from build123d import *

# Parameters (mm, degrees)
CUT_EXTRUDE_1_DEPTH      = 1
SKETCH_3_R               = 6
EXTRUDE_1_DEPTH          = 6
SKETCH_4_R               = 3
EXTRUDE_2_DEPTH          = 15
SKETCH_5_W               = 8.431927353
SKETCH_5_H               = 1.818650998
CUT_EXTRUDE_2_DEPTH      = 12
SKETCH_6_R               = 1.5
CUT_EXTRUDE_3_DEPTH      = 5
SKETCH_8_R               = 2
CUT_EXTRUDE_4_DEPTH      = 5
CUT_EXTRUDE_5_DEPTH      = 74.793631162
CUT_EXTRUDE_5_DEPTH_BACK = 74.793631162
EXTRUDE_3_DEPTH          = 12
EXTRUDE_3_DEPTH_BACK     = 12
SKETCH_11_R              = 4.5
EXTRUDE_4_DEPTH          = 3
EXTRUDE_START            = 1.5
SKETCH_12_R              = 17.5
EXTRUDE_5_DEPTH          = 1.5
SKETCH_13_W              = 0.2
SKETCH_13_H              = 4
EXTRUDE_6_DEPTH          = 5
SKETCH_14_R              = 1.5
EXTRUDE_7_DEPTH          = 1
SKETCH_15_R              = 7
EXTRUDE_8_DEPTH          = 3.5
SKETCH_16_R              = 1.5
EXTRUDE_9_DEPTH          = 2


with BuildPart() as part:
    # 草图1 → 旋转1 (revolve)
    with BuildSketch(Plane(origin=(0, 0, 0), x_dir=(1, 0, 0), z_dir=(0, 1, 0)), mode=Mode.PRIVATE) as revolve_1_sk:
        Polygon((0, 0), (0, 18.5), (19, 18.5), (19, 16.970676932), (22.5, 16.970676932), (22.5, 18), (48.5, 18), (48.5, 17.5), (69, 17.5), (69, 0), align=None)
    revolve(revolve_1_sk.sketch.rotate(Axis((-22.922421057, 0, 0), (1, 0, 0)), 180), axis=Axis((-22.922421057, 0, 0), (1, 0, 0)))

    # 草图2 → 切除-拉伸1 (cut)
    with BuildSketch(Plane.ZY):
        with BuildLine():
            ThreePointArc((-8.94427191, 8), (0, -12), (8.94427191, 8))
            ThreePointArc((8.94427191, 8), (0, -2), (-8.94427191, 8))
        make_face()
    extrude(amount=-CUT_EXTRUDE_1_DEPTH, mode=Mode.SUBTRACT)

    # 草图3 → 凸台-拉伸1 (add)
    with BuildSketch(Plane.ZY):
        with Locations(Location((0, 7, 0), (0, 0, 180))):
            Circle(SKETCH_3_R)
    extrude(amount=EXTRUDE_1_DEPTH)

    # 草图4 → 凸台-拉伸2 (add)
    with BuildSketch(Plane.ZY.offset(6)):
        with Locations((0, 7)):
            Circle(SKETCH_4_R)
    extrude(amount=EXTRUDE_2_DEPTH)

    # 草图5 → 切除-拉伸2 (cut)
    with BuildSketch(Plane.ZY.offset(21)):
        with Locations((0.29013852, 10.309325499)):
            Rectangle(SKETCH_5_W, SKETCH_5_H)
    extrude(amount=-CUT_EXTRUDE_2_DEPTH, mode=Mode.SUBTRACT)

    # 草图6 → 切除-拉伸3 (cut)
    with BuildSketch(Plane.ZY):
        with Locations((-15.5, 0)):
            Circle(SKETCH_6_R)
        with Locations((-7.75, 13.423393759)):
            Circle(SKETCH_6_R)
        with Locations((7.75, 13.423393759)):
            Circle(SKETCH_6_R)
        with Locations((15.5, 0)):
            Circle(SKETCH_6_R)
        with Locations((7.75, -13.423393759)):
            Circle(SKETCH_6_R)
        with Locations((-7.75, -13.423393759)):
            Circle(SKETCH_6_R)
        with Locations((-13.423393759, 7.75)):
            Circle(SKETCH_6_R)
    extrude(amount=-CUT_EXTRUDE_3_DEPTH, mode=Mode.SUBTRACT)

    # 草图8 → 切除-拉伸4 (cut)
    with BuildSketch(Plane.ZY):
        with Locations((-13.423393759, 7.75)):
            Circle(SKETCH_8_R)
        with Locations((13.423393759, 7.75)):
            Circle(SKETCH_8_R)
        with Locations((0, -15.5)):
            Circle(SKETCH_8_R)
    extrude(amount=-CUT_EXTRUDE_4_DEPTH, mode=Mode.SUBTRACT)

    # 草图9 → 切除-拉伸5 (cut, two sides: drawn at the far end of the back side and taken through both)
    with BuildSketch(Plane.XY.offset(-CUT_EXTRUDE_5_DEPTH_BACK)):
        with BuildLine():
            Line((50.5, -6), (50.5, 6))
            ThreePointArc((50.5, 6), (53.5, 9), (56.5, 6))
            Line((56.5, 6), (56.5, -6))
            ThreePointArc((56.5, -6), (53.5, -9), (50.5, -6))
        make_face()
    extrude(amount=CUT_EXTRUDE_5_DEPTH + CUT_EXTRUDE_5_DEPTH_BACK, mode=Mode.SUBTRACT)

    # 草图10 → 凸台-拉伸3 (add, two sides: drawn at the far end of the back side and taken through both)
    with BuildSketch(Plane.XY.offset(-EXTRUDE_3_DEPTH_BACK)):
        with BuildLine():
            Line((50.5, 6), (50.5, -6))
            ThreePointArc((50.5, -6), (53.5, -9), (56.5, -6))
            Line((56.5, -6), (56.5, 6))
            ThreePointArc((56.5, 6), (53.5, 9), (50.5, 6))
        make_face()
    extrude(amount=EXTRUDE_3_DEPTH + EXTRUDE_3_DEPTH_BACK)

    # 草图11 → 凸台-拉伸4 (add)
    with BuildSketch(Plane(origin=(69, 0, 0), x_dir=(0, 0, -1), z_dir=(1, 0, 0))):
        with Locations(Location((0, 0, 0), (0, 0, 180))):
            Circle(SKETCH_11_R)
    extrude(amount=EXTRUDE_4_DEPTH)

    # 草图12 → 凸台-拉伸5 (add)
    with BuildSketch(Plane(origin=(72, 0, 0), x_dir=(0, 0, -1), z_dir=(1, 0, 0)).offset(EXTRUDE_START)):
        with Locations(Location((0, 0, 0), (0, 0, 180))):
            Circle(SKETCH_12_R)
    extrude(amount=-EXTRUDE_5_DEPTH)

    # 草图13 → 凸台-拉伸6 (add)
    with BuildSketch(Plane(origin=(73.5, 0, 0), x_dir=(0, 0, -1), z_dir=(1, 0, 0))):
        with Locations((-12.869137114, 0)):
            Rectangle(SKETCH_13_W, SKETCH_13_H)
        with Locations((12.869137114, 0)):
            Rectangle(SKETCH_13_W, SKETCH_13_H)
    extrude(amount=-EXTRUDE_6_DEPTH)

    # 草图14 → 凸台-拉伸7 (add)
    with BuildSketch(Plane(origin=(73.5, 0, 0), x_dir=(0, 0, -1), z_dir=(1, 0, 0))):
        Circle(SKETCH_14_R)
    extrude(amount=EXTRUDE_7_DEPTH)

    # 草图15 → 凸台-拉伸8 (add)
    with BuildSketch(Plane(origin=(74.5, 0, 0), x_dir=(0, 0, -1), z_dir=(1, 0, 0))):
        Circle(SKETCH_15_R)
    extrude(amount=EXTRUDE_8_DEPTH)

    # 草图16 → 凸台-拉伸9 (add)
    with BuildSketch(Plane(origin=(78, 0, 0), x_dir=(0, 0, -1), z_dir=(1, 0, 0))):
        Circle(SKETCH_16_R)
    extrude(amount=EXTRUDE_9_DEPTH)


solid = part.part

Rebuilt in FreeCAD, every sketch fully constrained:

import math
import FreeCAD as App
import Part
import Sketcher

V = App.Vector
Q = App.Units.Quantity


def add_polygon(sketch, points):
    """Adds a closed chain of lines whose ends are joined by coincident constraints."""
    first, n = sketch.GeometryCount, len(points)
    for a, b in zip(points, points[1:] + points[:1]):
        sketch.addGeometry(Part.LineSegment(App.Vector(*a, 0), App.Vector(*b, 0)), False)
    for i in range(n):
        sketch.addConstraint(Sketcher.Constraint("Coincident", first + i, 2, first + (i + 1) % n, 1))

doc = App.newDocument("Part")
params = doc.addObject("Spreadsheet::Sheet", "Params")
for row, (alias, value) in enumerate([
    ("sketch1_width", "69 mm"),
    ("sketch1_width2", "26 mm"),
    ("sketch1_width3", "19 mm"),
    ("sketch1_width4", "20.5 mm"),
    ("sketch1_height", "18.5 mm"),
    ("revolution_angle", "360 deg"),
    ("sketch2_radius", "12 mm"),
    ("sketch2_radius2", "9 mm"),
    ("pocket1_length", "1 mm"),
    ("sketch3_diameter", "12 mm"),
    ("pad1_length", "6 mm"),
    ("sketch4_diameter", "6 mm"),
    ("pad2_length", "15 mm"),
    ("pocket2_length", "12 mm"),
    ("sketch6_diameter", "3 mm"),
    ("pocket3_length", "5 mm"),
    ("sketch7_diameter", "4 mm"),
    ("pocket4_length", "5 mm"),
    ("sketch8_radius", "3 mm"),
    ("sketch8_height", "12 mm"),
    ("sketch9_radius", "3 mm"),
    ("sketch9_height", "12 mm"),
    ("pad3_length", "12 mm"),
    ("pad3_length2", "12 mm"),
    ("sketch10_diameter", "9 mm"),
    ("pad4_length", "3 mm"),
    ("sketch11_diameter", "35 mm"),
    ("pad5_length", "1.5 mm"),
    ("sketch12_width", "4 mm"),
    ("sketch12_height", "0.2 mm"),
    ("pad6_length", "5 mm"),
    ("sketch13_diameter", "3 mm"),
    ("pad7_length", "1 mm"),
    ("sketch14_diameter", "14 mm"),
    ("pad8_length", "3.5 mm"),
    ("sketch15_diameter", "3 mm"),
    ("pad9_length", "2 mm"),
], start=1):
    params.set(f"A{row}", alias)
    params.set(f"B{row}", "=" + value)
    params.setAlias(f"B{row}", alias)

body = doc.addObject("PartDesign::Body", "Body")

# Sketch on XZ plane
sketch1 = doc.addObject("Sketcher::SketchObject", "Sketch")
body.addObject(sketch1)
sketch1.AttachmentSupport = (doc.XZ_Plane, [""])
sketch1.MapMode = "FlatFace"
add_polygon(sketch1, [(0, -18.5), (0, 0), (69, 0), (69, -17.5), (48.5, -17.5), (48.5, -18), (22.5, -18), (22.5, -16.970677), (19, -16.970677), (19, -18.5)])  # lines 0-9
sketch1.addConstraint([
    Sketcher.Constraint("Vertical", 0),
    Sketcher.Constraint("Horizontal", 1),
    Sketcher.Constraint("Vertical", 2),
    Sketcher.Constraint("Horizontal", 3),
    Sketcher.Constraint("Vertical", 4),
    Sketcher.Constraint("Horizontal", 5),
    Sketcher.Constraint("Vertical", 6),
    Sketcher.Constraint("Horizontal", 7),
    Sketcher.Constraint("Vertical", 8),
    Sketcher.Constraint("Horizontal", 9),
    Sketcher.Constraint("Coincident", 0, 2, -1, 1),
    Sketcher.Constraint("DistanceX", 1, 1, 1, 2, Q("69 mm")),
    Sketcher.Constraint("DistanceX", 5, 2, 5, 1, Q("26 mm")),
    Sketcher.Constraint("DistanceX", 9, 2, 9, 1, Q("19 mm")),
    Sketcher.Constraint("DistanceX", 3, 2, 3, 1, Q("20.5 mm")),
    Sketcher.Constraint("DistanceY", 0, 1, 0, 2, Q("18.5 mm")),
    Sketcher.Constraint("DistanceY", 2, 2, 2, 1, Q("17.5 mm")),
    Sketcher.Constraint("DistanceY", 4, 2, 4, 1, Q("0.5 mm")),
    Sketcher.Constraint("DistanceY", 6, 1, 6, 2, Q("1.029323 mm")),
])
sketch1.setExpression("Constraints[21]", "Params.sketch1_width")
sketch1.setExpression("Constraints[22]", "Params.sketch1_width2")
sketch1.setExpression("Constraints[23]", "Params.sketch1_width3")
sketch1.setExpression("Constraints[24]", "Params.sketch1_width4")
sketch1.setExpression("Constraints[25]", "Params.sketch1_height")
revolution = doc.addObject("PartDesign::Revolution", "Revolution")
body.addObject(revolution)
revolution.Profile = sketch1
revolution.ReferenceAxis = (sketch1, ["H_Axis"])
revolution.setExpression("Angle", "Params.revolution_angle")

# Sketch on YZ plane
sketch2 = doc.addObject("Sketcher::SketchObject", "Sketch001")
body.addObject(sketch2)
sketch2.AttachmentSupport = (doc.YZ_Plane, [""])
sketch2.MapMode = "FlatFace"
sketch2.addGeometry([
    Part.ArcOfCircle(Part.Circle(V(0, 0, 0), V(0, 0, 1), 12), math.radians(48.189685), math.radians(311.810315)),
    Part.ArcOfCircle(Part.Circle(V(7, 0, 0), V(0, 0, 1), 9), math.radians(83.62063), math.radians(276.37937)),
], False)
sketch2.addConstraint([
    Sketcher.Constraint("Coincident", 0, 1, 1, 1),
    Sketcher.Constraint("Coincident", 1, 2, 0, 2),
    Sketcher.Constraint("Coincident", 0, 3, -1, 1),
    Sketcher.Constraint("PointOnObject", 1, 3, -1),
    Sketcher.Constraint("Radius", 0, Q("12 mm")),
    Sketcher.Constraint("Radius", 1, Q("9 mm")),
    Sketcher.Constraint("DistanceX", -1, 1, 1, 3, Q("7 mm")),
])
sketch2.setExpression("Constraints[4]", "Params.sketch2_radius")
sketch2.setExpression("Constraints[5]", "Params.sketch2_radius2")
pocket1 = doc.addObject("PartDesign::Pocket", "Pocket")
body.addObject(pocket1)
pocket1.Profile = sketch2
pocket1.setExpression("Length", "Params.pocket1_length")
pocket1.Reversed = True

# Sketch on YZ plane
sketch3 = doc.addObject("Sketcher::SketchObject", "Sketch002")
body.addObject(sketch3)
sketch3.AttachmentSupport = (doc.YZ_Plane, [""])
sketch3.MapMode = "FlatFace"
sketch3.addGeometry(Part.Circle(V(7, 0, 0), V(0, 0, 1), 6), False)
sketch3.addConstraint([
    Sketcher.Constraint("PointOnObject", 0, 3, -1),
    Sketcher.Constraint("Diameter", 0, Q("12 mm")),
    Sketcher.Constraint("DistanceX", -1, 1, 0, 3, Q("7 mm")),
])
sketch3.setExpression("Constraints[1]", "Params.sketch3_diameter")
pad1 = doc.addObject("PartDesign::Pad", "Pad")
body.addObject(pad1)
pad1.Profile = sketch3
pad1.setExpression("Length", "Params.pad1_length")
pad1.Reversed = True

# Sketch on YZ plane
sketch4 = doc.addObject("Sketcher::SketchObject", "Sketch003")
body.addObject(sketch4)
sketch4.AttachmentSupport = (doc.YZ_Plane, [""])
sketch4.MapMode = "FlatFace"
sketch4.AttachmentOffset = App.Placement(V(0, 0, -6), App.Rotation())
sketch4.addGeometry(Part.Circle(V(7, 0, 0), V(0, 0, 1), 3), False)
sketch4.addConstraint([
    Sketcher.Constraint("PointOnObject", 0, 3, -1),
    Sketcher.Constraint("Diameter", 0, Q("6 mm")),
    Sketcher.Constraint("DistanceX", -1, 1, 0, 3, Q("7 mm")),
])
sketch4.setExpression("Constraints[1]", "Params.sketch4_diameter")
pad2 = doc.addObject("PartDesign::Pad", "Pad001")
body.addObject(pad2)
pad2.Profile = sketch4
pad2.setExpression("Length", "Params.pad2_length")
pad2.Reversed = True

# Sketch on YZ plane
sketch5 = doc.addObject("Sketcher::SketchObject", "Sketch004")
body.addObject(sketch5)
sketch5.AttachmentSupport = (doc.YZ_Plane, [""])
sketch5.MapMode = "FlatFace"
sketch5.AttachmentOffset = App.Placement(V(0, 0, -21), App.Rotation())
add_polygon(sketch5, [(11.218651, -3.925825), (9.4, -3.925825), (9.4, 4.506102), (11.218651, 4.506102)])  # lines 0-3
sketch5.addConstraint([
    Sketcher.Constraint("Horizontal", 0),
    Sketcher.Constraint("Vertical", 1),
    Sketcher.Constraint("Horizontal", 2),
    Sketcher.Constraint("Vertical", 3),
    Sketcher.Constraint("DistanceX", -1, 1, 0, 2, Q("9.4 mm")),
    Sketcher.Constraint("DistanceX", 0, 2, 0, 1, Q("1.818651 mm")),
    Sketcher.Constraint("DistanceY", 1, 1, 1, 2, Q("8.431927 mm")),
    Sketcher.Constraint("DistanceY", 0, 2, -1, 1, Q("3.925825 mm")),
])
pocket2 = doc.addObject("PartDesign::Pocket", "Pocket001")
body.addObject(pocket2)
pocket2.Profile = sketch5
pocket2.setExpression("Length", "Params.pocket2_length")
pocket2.Reversed = True

# Sketch on YZ plane
sketch6 = doc.addObject("Sketcher::SketchObject", "Sketch005")
body.addObject(sketch6)
sketch6.AttachmentSupport = (doc.YZ_Plane, [""])
sketch6.MapMode = "FlatFace"
sketch6.addGeometry([
    Part.Circle(V(0, -15.5, 0), V(0, 0, 1), 1.5),  # 0
    Part.Circle(V(13.423394, -7.75, 0), V(0, 0, 1), 1.5),  # 1
    Part.Circle(V(13.423394, 7.75, 0), V(0, 0, 1), 1.5),  # 2
    Part.Circle(V(0, 15.5, 0), V(0, 0, 1), 1.5),  # 3
    Part.Circle(V(-13.423394, 7.75, 0), V(0, 0, 1), 1.5),  # 4
    Part.Circle(V(-13.423394, -7.75, 0), V(0, 0, 1), 1.5),  # 5
    Part.Circle(V(7.75, -13.423394, 0), V(0, 0, 1), 1.5),  # 6
], False)
sketch6.addConstraint([
    Sketcher.Constraint("Equal", 0, 1),
    Sketcher.Constraint("Equal", 1, 2),
    Sketcher.Constraint("Equal", 2, 3),
    Sketcher.Constraint("Equal", 3, 4),
    Sketcher.Constraint("Equal", 4, 5),
    Sketcher.Constraint("Equal", 5, 6),
    Sketcher.Constraint("Symmetric", 0, 3, 3, 3, -1, 1),
    Sketcher.Constraint("Symmetric", 1, 3, 4, 3, -1, 1),
    Sketcher.Constraint("Symmetric", 2, 3, 5, 3, -1, 1),
    Sketcher.Constraint("Symmetric", 2, 3, 4, 3, -2),
    Sketcher.Constraint("PointOnObject", 0, 3, -2),
    Sketcher.Constraint("Diameter", 0, Q("3 mm")),
    Sketcher.Constraint("DistanceY", 0, 3, 3, 3, Q("31 mm")),
    Sketcher.Constraint("DistanceY", 1, 3, 2, 3, Q("15.5 mm")),
    Sketcher.Constraint("DistanceX", -1, 1, 6, 3, Q("7.75 mm")),
    Sketcher.Constraint("DistanceX", -1, 1, 1, 3, Q("13.423394 mm")),
    Sketcher.Constraint("DistanceY", 6, 3, -1, 1, Q("13.423394 mm")),
])
sketch6.setExpression("Constraints[11]", "Params.sketch6_diameter")
pocket3 = doc.addObject("PartDesign::Pocket", "Pocket002")
body.addObject(pocket3)
pocket3.Profile = sketch6
pocket3.setExpression("Length", "Params.pocket3_length")
pocket3.Reversed = True

# Sketch on YZ plane
sketch7 = doc.addObject("Sketcher::SketchObject", "Sketch006")
body.addObject(sketch7)
sketch7.AttachmentSupport = (doc.YZ_Plane, [""])
sketch7.MapMode = "FlatFace"
sketch7.addGeometry([
    Part.Circle(V(7.75, -13.423394, 0), V(0, 0, 1), 2),
    Part.Circle(V(7.75, 13.423394, 0), V(0, 0, 1), 2),
    Part.Circle(V(-15.5, 0, 0), V(0, 0, 1), 2),
], False)
sketch7.addConstraint([
    Sketcher.Constraint("Equal", 0, 1),
    Sketcher.Constraint("Equal", 1, 2),
    Sketcher.Constraint("Symmetric", 0, 3, 1, 3, -1),
    Sketcher.Constraint("PointOnObject", 2, 3, -1),
    Sketcher.Constraint("Diameter", 0, Q("4 mm")),
    Sketcher.Constraint("DistanceX", 2, 3, -1, 1, Q("15.5 mm")),
    Sketcher.Constraint("DistanceX", -1, 1, 0, 3, Q("7.75 mm")),
    Sketcher.Constraint("DistanceY", 0, 3, -1, 1, Q("13.423394 mm")),
])
sketch7.setExpression("Constraints[4]", "Params.sketch7_diameter")
pocket4 = doc.addObject("PartDesign::Pocket", "Pocket003")
body.addObject(pocket4)
pocket4.Profile = sketch7
pocket4.setExpression("Length", "Params.pocket4_length")
pocket4.Reversed = True

# Sketch on XY plane
sketch8 = doc.addObject("Sketcher::SketchObject", "Sketch007")
body.addObject(sketch8)
sketch8.AttachmentSupport = (doc.XY_Plane, [""])
sketch8.MapMode = "FlatFace"
sketch8.addGeometry([
    Part.LineSegment(V(50.5, 6, 0), V(50.5, -6, 0)),
    Part.ArcOfCircle(Part.Circle(V(53.5, -6, 0), V(0, 0, 1), 3), math.radians(180), math.radians(360)),
    Part.LineSegment(V(56.5, -6, 0), V(56.5, 6, 0)),
    Part.ArcOfCircle(Part.Circle(V(53.5, 6, 0), V(0, 0, 1), 3), math.radians(0), math.radians(180)),
], False)
sketch8.addConstraint([
    Sketcher.Constraint("Tangent", 0, 2, 1, 1),
    Sketcher.Constraint("Tangent", 1, 2, 2, 1),
    Sketcher.Constraint("Tangent", 2, 2, 3, 1),
    Sketcher.Constraint("Tangent", 3, 2, 0, 1),
    Sketcher.Constraint("Vertical", 0),
    Sketcher.Constraint("Vertical", 2),
    Sketcher.Constraint("Radius", 1, Q("3 mm")),
    Sketcher.Constraint("DistanceY", 0, 2, 0, 1, Q("12 mm")),
    Sketcher.Constraint("DistanceY", 1, 3, -1, 1, Q("6 mm")),
    Sketcher.Constraint("DistanceX", -1, 1, 1, 3, Q("53.5 mm")),
])
sketch8.setExpression("Constraints[6]", "Params.sketch8_radius")
sketch8.setExpression("Constraints[7]", "Params.sketch8_height")
pocket5 = doc.addObject("PartDesign::Pocket", "Pocket004")
body.addObject(pocket5)
pocket5.Profile = sketch8
pocket5.Type = "ThroughAll"
pocket5.Midplane = True

# Sketch on XY plane
sketch9 = doc.addObject("Sketcher::SketchObject", "Sketch008")
body.addObject(sketch9)
sketch9.AttachmentSupport = (doc.XY_Plane, [""])
sketch9.MapMode = "FlatFace"
sketch9.addGeometry([
    Part.LineSegment(V(50.5, 6, 0), V(50.5, -6, 0)),
    Part.ArcOfCircle(Part.Circle(V(53.5, -6, 0), V(0, 0, 1), 3), math.radians(180), math.radians(360)),
    Part.LineSegment(V(56.5, -6, 0), V(56.5, 6, 0)),
    Part.ArcOfCircle(Part.Circle(V(53.5, 6, 0), V(0, 0, 1), 3), math.radians(0), math.radians(180)),
], False)
sketch9.addConstraint([
    Sketcher.Constraint("Tangent", 0, 2, 1, 1),
    Sketcher.Constraint("Tangent", 1, 2, 2, 1),
    Sketcher.Constraint("Tangent", 2, 2, 3, 1),
    Sketcher.Constraint("Tangent", 3, 2, 0, 1),
    Sketcher.Constraint("Vertical", 0),
    Sketcher.Constraint("Vertical", 2),
    Sketcher.Constraint("Radius", 1, Q("3 mm")),
    Sketcher.Constraint("DistanceY", 0, 2, 0, 1, Q("12 mm")),
    Sketcher.Constraint("DistanceY", 1, 3, -1, 1, Q("6 mm")),
    Sketcher.Constraint("DistanceX", -1, 1, 1, 3, Q("53.5 mm")),
])
sketch9.setExpression("Constraints[6]", "Params.sketch9_radius")
sketch9.setExpression("Constraints[7]", "Params.sketch9_height")
pad3 = doc.addObject("PartDesign::Pad", "Pad002")
body.addObject(pad3)
pad3.Profile = sketch9
pad3.Type = "TwoLengths"
pad3.setExpression("Length", "Params.pad3_length")
pad3.setExpression("Length2", "Params.pad3_length2")

# Sketch on YZ plane
sketch10 = doc.addObject("Sketcher::SketchObject", "Sketch009")
body.addObject(sketch10)
sketch10.AttachmentSupport = (doc.YZ_Plane, [""])
sketch10.MapMode = "FlatFace"
sketch10.AttachmentOffset = App.Placement(V(0, 0, 69), App.Rotation())
sketch10.addGeometry(Part.Circle(V(0, 0, 0), V(0, 0, 1), 4.5), False)
sketch10.addConstraint([
    Sketcher.Constraint("Coincident", 0, 3, -1, 1),
    Sketcher.Constraint("Diameter", 0, Q("9 mm")),
])
sketch10.setExpression("Constraints[1]", "Params.sketch10_diameter")
pad4 = doc.addObject("PartDesign::Pad", "Pad003")
body.addObject(pad4)
pad4.Profile = sketch10
pad4.setExpression("Length", "Params.pad4_length")

# Sketch on YZ plane
sketch11 = doc.addObject("Sketcher::SketchObject", "Sketch010")
body.addObject(sketch11)
sketch11.AttachmentSupport = (doc.YZ_Plane, [""])
sketch11.MapMode = "FlatFace"
sketch11.AttachmentOffset = App.Placement(V(0, 0, 73.5), App.Rotation())
sketch11.addGeometry(Part.Circle(V(0, 0, 0), V(0, 0, 1), 17.5), False)
sketch11.addConstraint([
    Sketcher.Constraint("Coincident", 0, 3, -1, 1),
    Sketcher.Constraint("Diameter", 0, Q("35 mm")),
])
sketch11.setExpression("Constraints[1]", "Params.sketch11_diameter")
pad5 = doc.addObject("PartDesign::Pad", "Pad004")
body.addObject(pad5)
pad5.Profile = sketch11
pad5.setExpression("Length", "Params.pad5_length")
pad5.Reversed = True

# Sketch on YZ plane
sketch12 = doc.addObject("Sketcher::SketchObject", "Sketch011")
body.addObject(sketch12)
sketch12.AttachmentSupport = (doc.YZ_Plane, [""])
sketch12.MapMode = "FlatFace"
sketch12.AttachmentOffset = App.Placement(V(0, 0, 73.5), App.Rotation())
add_polygon(sketch12, [(2, 12.969137), (-2, 12.969137), (-2, 12.769137), (2, 12.769137)])  # lines 0-3
add_polygon(sketch12, [(2, -12.769137), (-2, -12.769137), (-2, -12.969137), (2, -12.969137)])  # lines 4-7
sketch12.addConstraint([
    Sketcher.Constraint("Horizontal", 0),
    Sketcher.Constraint("Vertical", 1),
    Sketcher.Constraint("Horizontal", 2),
    Sketcher.Constraint("Vertical", 3),
    Sketcher.Constraint("Horizontal", 4),
    Sketcher.Constraint("Vertical", 5),
    Sketcher.Constraint("Horizontal", 6),
    Sketcher.Constraint("Vertical", 7),
    Sketcher.Constraint("Symmetric", 2, 2, 4, 2, -1, 1),
    Sketcher.Constraint("Symmetric", 0, 2, 6, 2, -1, 1),
    Sketcher.Constraint("Vertical", 1, 2, 4, 2),
    Sketcher.Constraint("DistanceX", 0, 2, 0, 1, Q("4 mm")),
    Sketcher.Constraint("DistanceY", 1, 2, 1, 1, Q("0.2 mm")),
    Sketcher.Constraint("DistanceY", -1, 1, 0, 2, Q("12.969137 mm")),
])
sketch12.setExpression("Constraints[19]", "Params.sketch12_width")
sketch12.setExpression("Constraints[20]", "Params.sketch12_height")
pad6 = doc.addObject("PartDesign::Pad", "Pad005")
body.addObject(pad6)
pad6.Profile = sketch12
pad6.setExpression("Length", "Params.pad6_length")
pad6.Reversed = True

# Sketch on YZ plane
sketch13 = doc.addObject("Sketcher::SketchObject", "Sketch012")
body.addObject(sketch13)
sketch13.AttachmentSupport = (doc.YZ_Plane, [""])
sketch13.MapMode = "FlatFace"
sketch13.AttachmentOffset = App.Placement(V(0, 0, 73.5), App.Rotation())
sketch13.addGeometry(Part.Circle(V(0, 0, 0), V(0, 0, 1), 1.5), False)
sketch13.addConstraint([
    Sketcher.Constraint("Coincident", 0, 3, -1, 1),
    Sketcher.Constraint("Diameter", 0, Q("3 mm")),
])
sketch13.setExpression("Constraints[1]", "Params.sketch13_diameter")
pad7 = doc.addObject("PartDesign::Pad", "Pad006")
body.addObject(pad7)
pad7.Profile = sketch13
pad7.setExpression("Length", "Params.pad7_length")

# Sketch on YZ plane
sketch14 = doc.addObject("Sketcher::SketchObject", "Sketch013")
body.addObject(sketch14)
sketch14.AttachmentSupport = (doc.YZ_Plane, [""])
sketch14.MapMode = "FlatFace"
sketch14.AttachmentOffset = App.Placement(V(0, 0, 74.5), App.Rotation())
sketch14.addGeometry(Part.Circle(V(0, 0, 0), V(0, 0, 1), 7), False)
sketch14.addConstraint([
    Sketcher.Constraint("Coincident", 0, 3, -1, 1),
    Sketcher.Constraint("Diameter", 0, Q("14 mm")),
])
sketch14.setExpression("Constraints[1]", "Params.sketch14_diameter")
pad8 = doc.addObject("PartDesign::Pad", "Pad007")
body.addObject(pad8)
pad8.Profile = sketch14
pad8.setExpression("Length", "Params.pad8_length")

# Sketch on YZ plane
sketch15 = doc.addObject("Sketcher::SketchObject", "Sketch014")
body.addObject(sketch15)
sketch15.AttachmentSupport = (doc.YZ_Plane, [""])
sketch15.MapMode = "FlatFace"
sketch15.AttachmentOffset = App.Placement(V(0, 0, 78), App.Rotation())
sketch15.addGeometry(Part.Circle(V(0, 0, 0), V(0, 0, 1), 1.5), False)
sketch15.addConstraint([
    Sketcher.Constraint("Coincident", 0, 3, -1, 1),
    Sketcher.Constraint("Diameter", 0, Q("3 mm")),
])
sketch15.setExpression("Constraints[1]", "Params.sketch15_diameter")
pad9 = doc.addObject("PartDesign::Pad", "Pad008")
body.addObject(pad9)
pad9.Profile = sketch15
pad9.setExpression("Length", "Params.pad9_length")

doc.recompute()
